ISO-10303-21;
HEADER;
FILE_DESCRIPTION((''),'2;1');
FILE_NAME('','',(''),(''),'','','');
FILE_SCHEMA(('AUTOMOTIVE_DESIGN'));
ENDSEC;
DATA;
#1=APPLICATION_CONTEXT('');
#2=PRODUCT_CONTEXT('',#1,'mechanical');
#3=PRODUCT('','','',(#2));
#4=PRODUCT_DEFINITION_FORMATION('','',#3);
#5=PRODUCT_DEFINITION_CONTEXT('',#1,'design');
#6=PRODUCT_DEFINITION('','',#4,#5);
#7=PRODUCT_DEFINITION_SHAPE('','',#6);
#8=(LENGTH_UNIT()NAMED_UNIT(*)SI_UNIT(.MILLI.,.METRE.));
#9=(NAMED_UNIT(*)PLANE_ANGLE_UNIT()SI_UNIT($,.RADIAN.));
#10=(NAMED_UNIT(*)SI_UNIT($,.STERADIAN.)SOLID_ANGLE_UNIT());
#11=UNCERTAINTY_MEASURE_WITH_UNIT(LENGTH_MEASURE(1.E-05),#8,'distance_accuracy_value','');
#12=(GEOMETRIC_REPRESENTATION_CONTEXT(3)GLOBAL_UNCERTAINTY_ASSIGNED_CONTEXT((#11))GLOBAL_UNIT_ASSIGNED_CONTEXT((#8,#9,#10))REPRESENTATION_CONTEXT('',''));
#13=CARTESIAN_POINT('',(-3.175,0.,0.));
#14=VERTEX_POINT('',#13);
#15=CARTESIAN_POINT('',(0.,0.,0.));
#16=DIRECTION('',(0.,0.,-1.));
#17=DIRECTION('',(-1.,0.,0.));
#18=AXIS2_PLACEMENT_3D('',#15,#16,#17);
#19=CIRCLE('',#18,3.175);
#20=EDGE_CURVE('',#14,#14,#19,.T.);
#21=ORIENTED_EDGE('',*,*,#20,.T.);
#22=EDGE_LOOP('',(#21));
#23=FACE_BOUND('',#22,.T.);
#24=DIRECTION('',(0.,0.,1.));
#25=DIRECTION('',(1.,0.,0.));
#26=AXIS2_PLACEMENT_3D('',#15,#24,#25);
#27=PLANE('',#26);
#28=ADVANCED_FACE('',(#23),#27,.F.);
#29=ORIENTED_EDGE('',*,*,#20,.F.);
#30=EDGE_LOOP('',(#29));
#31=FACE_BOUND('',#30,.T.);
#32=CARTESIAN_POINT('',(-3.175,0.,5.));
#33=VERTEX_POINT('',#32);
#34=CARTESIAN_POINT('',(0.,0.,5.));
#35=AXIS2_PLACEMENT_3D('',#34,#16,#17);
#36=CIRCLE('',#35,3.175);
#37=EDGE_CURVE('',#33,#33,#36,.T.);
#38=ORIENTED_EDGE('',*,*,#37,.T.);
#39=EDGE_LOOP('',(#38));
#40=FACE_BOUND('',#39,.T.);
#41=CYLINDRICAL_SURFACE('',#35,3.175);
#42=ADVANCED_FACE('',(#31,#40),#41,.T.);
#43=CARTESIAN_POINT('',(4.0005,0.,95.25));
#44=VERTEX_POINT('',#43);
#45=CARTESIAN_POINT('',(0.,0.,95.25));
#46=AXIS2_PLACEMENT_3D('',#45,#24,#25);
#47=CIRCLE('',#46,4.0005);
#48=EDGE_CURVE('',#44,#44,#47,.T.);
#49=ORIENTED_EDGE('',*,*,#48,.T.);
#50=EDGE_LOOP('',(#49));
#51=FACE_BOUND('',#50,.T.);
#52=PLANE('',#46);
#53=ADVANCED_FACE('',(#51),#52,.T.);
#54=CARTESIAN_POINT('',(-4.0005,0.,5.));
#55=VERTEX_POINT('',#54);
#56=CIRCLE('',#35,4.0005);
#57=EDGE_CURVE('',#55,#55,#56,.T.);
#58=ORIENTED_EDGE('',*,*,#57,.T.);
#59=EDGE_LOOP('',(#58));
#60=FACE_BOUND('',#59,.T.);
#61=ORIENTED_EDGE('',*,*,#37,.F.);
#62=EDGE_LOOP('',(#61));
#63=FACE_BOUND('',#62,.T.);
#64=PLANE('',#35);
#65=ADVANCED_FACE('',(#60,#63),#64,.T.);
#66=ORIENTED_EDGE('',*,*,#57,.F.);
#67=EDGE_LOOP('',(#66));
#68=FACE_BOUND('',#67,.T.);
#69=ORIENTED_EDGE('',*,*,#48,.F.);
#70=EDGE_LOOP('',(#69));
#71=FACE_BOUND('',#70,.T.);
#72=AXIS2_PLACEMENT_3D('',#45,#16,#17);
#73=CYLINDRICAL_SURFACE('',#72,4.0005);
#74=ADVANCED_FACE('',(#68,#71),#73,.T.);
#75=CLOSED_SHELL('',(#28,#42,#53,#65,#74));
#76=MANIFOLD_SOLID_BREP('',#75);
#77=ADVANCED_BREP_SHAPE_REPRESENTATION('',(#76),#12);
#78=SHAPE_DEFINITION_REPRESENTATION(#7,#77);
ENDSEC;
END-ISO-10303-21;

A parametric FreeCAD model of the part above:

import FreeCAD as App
import Part
import Sketcher
from FreeCAD import Vector
Q = App.Units.Quantity

doc = App.newDocument("Part")
params = doc.addObject("Spreadsheet::Sheet", "Params")
for row, (alias, value) in enumerate([
    ("sketch1_diameter", "0.315 in"),
    ("pad1_length", "3.75 in"),
    ("sketch2_diameter", "0.25 in"),
    ("pocket1_length", "5 mm"),
], start=1):
    params.set(f"A{row}", alias)
    params.set(f"B{row}", "=" + value)
    params.setAlias(f"B{row}", alias)

body = doc.addObject("PartDesign::Body", "Body")

sketch1 = body.newObject("Sketcher::SketchObject", "Sketch")
sketch1.AttachmentSupport = (doc.getObject("XY_Plane"), [""])
sketch1.MapMode = "FlatFace"
sketch1.addGeometry(Part.Circle(Vector(0, 0, 0), Vector(0, 0, 1), 4), False)
sketch1.addConstraint(Sketcher.Constraint("Coincident", 0, 3, -1, 1))
sketch1.addConstraint(Sketcher.Constraint("Diameter", 0, Q("0.315 in")))
sketch1.setExpression("Constraints[1]", "Params.sketch1_diameter")
pad1 = body.newObject("PartDesign::Pad", "Pad")
pad1.Profile = sketch1
pad1.setExpression("Length", "Params.pad1_length")

sketch2 = body.newObject("Sketcher::SketchObject", "Sketch001")
sketch2.AttachmentSupport = (doc.getObject("XY_Plane"), [""])
sketch2.MapMode = "FlatFace"
sketch2.addGeometry(Part.Circle(Vector(0, 0, 0), Vector(0, 0, 1), 6.5), False)
sketch2.addGeometry(Part.Circle(Vector(0, 0, 0), Vector(0, 0, 1), 3.2), False)
sketch2.addConstraint(Sketcher.Constraint("Coincident", 0, 3, -1, 1))
sketch2.addConstraint(Sketcher.Constraint("Coincident", 1, 3, -1, 1))
sketch2.addConstraint(Sketcher.Constraint("Diameter", 1, Q("0.25 in")))
sketch2.addConstraint(Sketcher.Constraint("Diameter", 0, 12.933832))
sketch2.setExpression("Constraints[2]", "Params.sketch2_diameter")
pocket1 = body.newObject("PartDesign::Pocket", "Pocket")
pocket1.Profile = sketch2
pocket1.setExpression("Length", "Params.pocket1_length")
pocket1.Reversed = True

doc.recompute()
